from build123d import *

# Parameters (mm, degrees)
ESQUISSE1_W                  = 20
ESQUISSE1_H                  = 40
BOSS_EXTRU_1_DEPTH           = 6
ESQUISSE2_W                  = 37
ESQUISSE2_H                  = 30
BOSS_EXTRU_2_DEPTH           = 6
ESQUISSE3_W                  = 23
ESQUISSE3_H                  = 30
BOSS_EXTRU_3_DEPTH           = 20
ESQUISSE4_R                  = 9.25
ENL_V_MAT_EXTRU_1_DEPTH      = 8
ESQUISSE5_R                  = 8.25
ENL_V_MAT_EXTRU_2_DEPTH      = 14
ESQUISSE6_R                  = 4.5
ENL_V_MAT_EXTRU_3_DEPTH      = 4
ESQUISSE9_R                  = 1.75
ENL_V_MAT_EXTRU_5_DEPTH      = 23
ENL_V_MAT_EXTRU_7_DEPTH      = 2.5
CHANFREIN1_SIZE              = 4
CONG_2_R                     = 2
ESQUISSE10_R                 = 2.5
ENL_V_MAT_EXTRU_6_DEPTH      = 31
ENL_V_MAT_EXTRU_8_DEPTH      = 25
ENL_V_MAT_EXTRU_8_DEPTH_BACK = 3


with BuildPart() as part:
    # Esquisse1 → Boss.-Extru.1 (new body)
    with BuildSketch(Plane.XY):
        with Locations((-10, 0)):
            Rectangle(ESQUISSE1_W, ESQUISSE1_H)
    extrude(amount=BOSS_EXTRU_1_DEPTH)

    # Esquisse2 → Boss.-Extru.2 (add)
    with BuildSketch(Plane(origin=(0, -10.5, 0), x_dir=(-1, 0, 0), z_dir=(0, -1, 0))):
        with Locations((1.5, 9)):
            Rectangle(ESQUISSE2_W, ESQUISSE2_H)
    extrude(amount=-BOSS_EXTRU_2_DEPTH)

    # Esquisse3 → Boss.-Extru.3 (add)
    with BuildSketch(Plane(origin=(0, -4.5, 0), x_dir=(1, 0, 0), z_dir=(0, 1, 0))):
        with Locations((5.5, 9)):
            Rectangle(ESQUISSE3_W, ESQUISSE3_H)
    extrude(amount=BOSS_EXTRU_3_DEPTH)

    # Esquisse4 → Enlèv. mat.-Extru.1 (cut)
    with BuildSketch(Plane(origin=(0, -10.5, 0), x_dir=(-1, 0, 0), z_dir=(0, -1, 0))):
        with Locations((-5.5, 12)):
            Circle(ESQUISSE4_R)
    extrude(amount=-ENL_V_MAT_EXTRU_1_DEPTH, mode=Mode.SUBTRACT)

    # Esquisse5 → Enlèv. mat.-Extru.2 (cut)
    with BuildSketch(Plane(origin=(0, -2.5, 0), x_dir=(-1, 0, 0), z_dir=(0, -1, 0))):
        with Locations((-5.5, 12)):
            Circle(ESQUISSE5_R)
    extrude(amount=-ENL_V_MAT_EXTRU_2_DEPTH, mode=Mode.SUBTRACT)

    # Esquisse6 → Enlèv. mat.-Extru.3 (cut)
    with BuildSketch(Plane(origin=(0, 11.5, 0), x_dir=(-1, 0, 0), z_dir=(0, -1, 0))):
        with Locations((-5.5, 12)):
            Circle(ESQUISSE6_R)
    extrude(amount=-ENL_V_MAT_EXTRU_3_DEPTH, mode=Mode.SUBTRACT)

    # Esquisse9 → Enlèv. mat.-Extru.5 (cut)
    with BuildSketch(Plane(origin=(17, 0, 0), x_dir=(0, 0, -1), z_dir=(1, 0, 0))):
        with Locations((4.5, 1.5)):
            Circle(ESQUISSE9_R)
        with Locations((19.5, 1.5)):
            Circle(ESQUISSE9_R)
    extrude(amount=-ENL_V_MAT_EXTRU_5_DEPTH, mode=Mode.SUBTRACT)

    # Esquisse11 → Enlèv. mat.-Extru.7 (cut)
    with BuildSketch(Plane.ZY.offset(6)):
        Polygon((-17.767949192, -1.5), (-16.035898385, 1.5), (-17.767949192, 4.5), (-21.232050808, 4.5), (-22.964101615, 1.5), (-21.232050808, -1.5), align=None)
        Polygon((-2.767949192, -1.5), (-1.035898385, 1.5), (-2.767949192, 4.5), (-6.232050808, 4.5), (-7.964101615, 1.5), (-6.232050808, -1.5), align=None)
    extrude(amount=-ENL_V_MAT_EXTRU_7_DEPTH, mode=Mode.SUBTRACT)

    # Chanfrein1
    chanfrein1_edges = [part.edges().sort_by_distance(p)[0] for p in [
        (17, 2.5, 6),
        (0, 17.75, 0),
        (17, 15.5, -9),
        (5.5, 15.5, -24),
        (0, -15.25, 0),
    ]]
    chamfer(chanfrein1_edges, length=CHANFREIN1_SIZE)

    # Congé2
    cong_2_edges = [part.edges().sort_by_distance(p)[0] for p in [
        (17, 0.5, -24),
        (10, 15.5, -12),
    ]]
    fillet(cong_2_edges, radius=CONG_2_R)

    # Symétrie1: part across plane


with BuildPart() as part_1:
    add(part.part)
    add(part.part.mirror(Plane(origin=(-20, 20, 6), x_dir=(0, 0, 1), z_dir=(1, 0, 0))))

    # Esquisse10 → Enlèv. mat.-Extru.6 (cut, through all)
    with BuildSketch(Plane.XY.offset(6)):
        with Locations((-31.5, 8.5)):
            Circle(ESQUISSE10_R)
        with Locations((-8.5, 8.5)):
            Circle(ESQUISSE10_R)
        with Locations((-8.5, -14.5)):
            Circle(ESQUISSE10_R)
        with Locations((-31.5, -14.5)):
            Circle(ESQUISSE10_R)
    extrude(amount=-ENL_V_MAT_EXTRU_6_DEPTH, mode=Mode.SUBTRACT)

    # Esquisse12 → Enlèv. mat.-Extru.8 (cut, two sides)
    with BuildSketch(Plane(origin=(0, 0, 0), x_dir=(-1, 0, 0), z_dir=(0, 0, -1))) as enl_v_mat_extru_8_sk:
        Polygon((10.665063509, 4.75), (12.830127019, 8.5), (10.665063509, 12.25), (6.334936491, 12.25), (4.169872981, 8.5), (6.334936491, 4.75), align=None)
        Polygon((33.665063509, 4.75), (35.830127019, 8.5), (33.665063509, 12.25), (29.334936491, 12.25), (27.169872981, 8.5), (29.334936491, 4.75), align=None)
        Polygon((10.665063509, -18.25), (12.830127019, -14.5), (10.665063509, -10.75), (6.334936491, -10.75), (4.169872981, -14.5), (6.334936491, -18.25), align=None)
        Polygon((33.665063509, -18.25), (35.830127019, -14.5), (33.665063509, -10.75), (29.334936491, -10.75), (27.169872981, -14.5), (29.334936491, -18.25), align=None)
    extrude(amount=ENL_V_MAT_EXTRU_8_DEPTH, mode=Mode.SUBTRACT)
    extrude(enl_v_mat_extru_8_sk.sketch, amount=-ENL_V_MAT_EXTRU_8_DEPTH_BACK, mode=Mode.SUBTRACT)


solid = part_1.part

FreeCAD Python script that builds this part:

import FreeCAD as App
import Part
import Sketcher
from FreeCAD import Vector
Q = App.Units.Quantity


def edges_at(feature, points):
    """Names of the edges that pass closest to the given points."""
    edges = feature.Shape.Edges
    near = lambda p: min(range(len(edges)), key=lambda i: edges[i].distToShape(Part.Vertex(*p))[0])
    return sorted({f"Edge{near(p) + 1}" for p in points})

doc = App.newDocument("Part")
params = doc.addObject("Spreadsheet::Sheet", "Params")
for row, (alias, value) in enumerate([
    ("sketch1_width", "20 mm"),
    ("sketch1_height", "40 mm"),
    ("pad1_length", "6 mm"),
    ("sketch2_width", "37 mm"),
    ("sketch2_height", "30 mm"),
    ("pad2_length", "6 mm"),
    ("sketch3_width", "23 mm"),
    ("sketch3_height", "30 mm"),
    ("pad3_length", "20 mm"),
    ("sketch4_diameter", "18.5 mm"),
    ("pocket1_length", "8 mm"),
    ("sketch5_diameter", "16.5 mm"),
    ("pocket2_length", "14 mm"),
    ("sketch6_diameter", "9 mm"),
    ("pocket3_length", "4 mm"),
    ("sketch7_diameter", "3.5 mm"),
    ("pocket4_length", "23 mm"),
    ("pocket5_length", "2.5 mm"),
    ("chamfer_size", "4 mm"),
    ("fillet_radius", "2 mm"),
    ("sketch9_diameter", "5 mm"),
    ("pocket7_length", "25 mm"),
    ("pocket7_length2", "3 mm"),
], start=1):
    params.set(f"A{row}", alias)
    params.set(f"B{row}", "=" + value)
    params.setAlias(f"B{row}", alias)

body = doc.addObject("PartDesign::Body", "Body")

# Sketch on XY plane
sketch1 = body.newObject("Sketcher::SketchObject", "Sketch")
sketch1.AttachmentSupport = (doc.getObject("XY_Plane"), [""])
sketch1.MapMode = "FlatFace"
sketch1.addGeometry([
    Part.LineSegment(Vector(-20, 20, 0), Vector(-20, -20, 0)),
    Part.LineSegment(Vector(-20, -20, 0), Vector(0, -20, 0)),
    Part.LineSegment(Vector(0, -20, 0), Vector(0, 20, 0)),
    Part.LineSegment(Vector(0, 20, 0), Vector(-20, 20, 0)),
], False)
sketch1.addConstraint([
    Sketcher.Constraint("Coincident", 0, 2, 1, 1),
    Sketcher.Constraint("Coincident", 1, 2, 2, 1),
    Sketcher.Constraint("Coincident", 2, 2, 3, 1),
    Sketcher.Constraint("Coincident", 3, 2, 0, 1),
    Sketcher.Constraint("Vertical", 0),
    Sketcher.Constraint("Horizontal", 1),
    Sketcher.Constraint("Vertical", 2),
    Sketcher.Constraint("Horizontal", 3),
    Sketcher.Constraint("Symmetric", 1, 2, 2, 2, -1, 1),
    Sketcher.Constraint("DistanceX", 1, 1, 1, 2, 20.0),
    Sketcher.Constraint("DistanceY", 0, 2, 0, 1, 40.0),
])
sketch1.setExpression("Constraints[9]", "Params.sketch1_width")
sketch1.setExpression("Constraints[10]", "Params.sketch1_height")
pad1 = body.newObject("PartDesign::Pad", "Pad")
pad1.Profile = sketch1
pad1.setExpression("Length", "Params.pad1_length")

# Sketch on XZ plane
sketch2 = body.newObject("Sketcher::SketchObject", "Sketch001")
sketch2.AttachmentSupport = (doc.getObject("XZ_Plane"), [""])
sketch2.MapMode = "FlatFace"
sketch2.AttachmentOffset = App.Placement(Vector(0, 0, 10.5), App.Rotation())
sketch2.addGeometry([
    Part.LineSegment(Vector(17, -24, 0), Vector(17, 6, 0)),
    Part.LineSegment(Vector(17, 6, 0), Vector(-20, 6, 0)),
    Part.LineSegment(Vector(-20, 6, 0), Vector(-20, -24, 0)),
    Part.LineSegment(Vector(-20, -24, 0), Vector(17, -24, 0)),
], False)
sketch2.addConstraint([
    Sketcher.Constraint("Coincident", 0, 2, 1, 1),
    Sketcher.Constraint("Coincident", 1, 2, 2, 1),
    Sketcher.Constraint("Coincident", 2, 2, 3, 1),
    Sketcher.Constraint("Coincident", 3, 2, 0, 1),
    Sketcher.Constraint("Vertical", 0),
    Sketcher.Constraint("Horizontal", 1),
    Sketcher.Constraint("Vertical", 2),
    Sketcher.Constraint("Horizontal", 3),
    Sketcher.Constraint("DistanceX", 1, 2, 1, 1, 37.0),
    Sketcher.Constraint("DistanceY", 0, 1, 0, 2, 30.0),
    Sketcher.Constraint("DistanceX", -1, 1, 0, 2, 17.0),
    Sketcher.Constraint("DistanceY", -1, 1, 0, 2, 6.0),
])
sketch2.setExpression("Constraints[8]", "Params.sketch2_width")
sketch2.setExpression("Constraints[9]", "Params.sketch2_height")
pad2 = body.newObject("PartDesign::Pad", "Pad001")
pad2.Profile = sketch2
pad2.setExpression("Length", "Params.pad2_length")
pad2.Reversed = True

# Sketch on XZ plane
sketch3 = body.newObject("Sketcher::SketchObject", "Sketch002")
sketch3.AttachmentSupport = (doc.getObject("XZ_Plane"), [""])
sketch3.MapMode = "FlatFace"
sketch3.AttachmentOffset = App.Placement(Vector(0, 0, 4.5), App.Rotation())
sketch3.addGeometry([
    Part.LineSegment(Vector(-6, -24, 0), Vector(-6, 6, 0)),
    Part.LineSegment(Vector(-6, 6, 0), Vector(17, 6, 0)),
    Part.LineSegment(Vector(17, 6, 0), Vector(17, -24, 0)),
    Part.LineSegment(Vector(17, -24, 0), Vector(-6, -24, 0)),
], False)
sketch3.addConstraint([
    Sketcher.Constraint("Coincident", 0, 2, 1, 1),
    Sketcher.Constraint("Coincident", 1, 2, 2, 1),
    Sketcher.Constraint("Coincident", 2, 2, 3, 1),
    Sketcher.Constraint("Coincident", 3, 2, 0, 1),
    Sketcher.Constraint("Vertical", 0),
    Sketcher.Constraint("Horizontal", 1),
    Sketcher.Constraint("Vertical", 2),
    Sketcher.Constraint("Horizontal", 3),
    Sketcher.Constraint("DistanceX", 1, 1, 1, 2, 23.0),
    Sketcher.Constraint("DistanceY", 0, 1, 0, 2, 30.0),
    Sketcher.Constraint("DistanceX", 0, 2, -1, 1, 6.0),
    Sketcher.Constraint("DistanceY", -1, 1, 0, 2, 6.0),
])
sketch3.setExpression("Constraints[8]", "Params.sketch3_width")
sketch3.setExpression("Constraints[9]", "Params.sketch3_height")
pad3 = body.newObject("PartDesign::Pad", "Pad002")
pad3.Profile = sketch3
pad3.setExpression("Length", "Params.pad3_length")
pad3.Reversed = True

# Sketch on XZ plane
sketch4 = body.newObject("Sketcher::SketchObject", "Sketch003")
sketch4.AttachmentSupport = (doc.getObject("XZ_Plane"), [""])
sketch4.MapMode = "FlatFace"
sketch4.AttachmentOffset = App.Placement(Vector(0, 0, 10.5), App.Rotation())
sketch4.addGeometry(Part.Circle(Vector(5.5, -12, 0), Vector(0, 0, 1), 9.25), False)
sketch4.addConstraint([
    Sketcher.Constraint("Diameter", 0, 18.5),
    Sketcher.Constraint("DistanceY", 0, 3, -1, 1, 12.0),
    Sketcher.Constraint("DistanceX", -1, 1, 0, 3, 5.5),
])
sketch4.setExpression("Constraints[0]", "Params.sketch4_diameter")
pocket1 = body.newObject("PartDesign::Pocket", "Pocket")
pocket1.Profile = sketch4
pocket1.setExpression("Length", "Params.pocket1_length")

# Sketch on XZ plane
sketch5 = body.newObject("Sketcher::SketchObject", "Sketch004")
sketch5.AttachmentSupport = (doc.getObject("XZ_Plane"), [""])
sketch5.MapMode = "FlatFace"
sketch5.AttachmentOffset = App.Placement(Vector(0, 0, 2.5), App.Rotation())
sketch5.addGeometry(Part.Circle(Vector(5.5, -12, 0), Vector(0, 0, 1), 8.25), False)
sketch5.addConstraint([
    Sketcher.Constraint("Diameter", 0, 16.5),
    Sketcher.Constraint("DistanceY", 0, 3, -1, 1, 12.0),
    Sketcher.Constraint("DistanceX", -1, 1, 0, 3, 5.5),
])
sketch5.setExpression("Constraints[0]", "Params.sketch5_diameter")
pocket2 = body.newObject("PartDesign::Pocket", "Pocket001")
pocket2.Profile = sketch5
pocket2.setExpression("Length", "Params.pocket2_length")

# Sketch on XZ plane
sketch6 = body.newObject("Sketcher::SketchObject", "Sketch005")
sketch6.AttachmentSupport = (doc.getObject("XZ_Plane"), [""])
sketch6.MapMode = "FlatFace"
sketch6.AttachmentOffset = App.Placement(Vector(0, 0, -11.5), App.Rotation())
sketch6.addGeometry(Part.Circle(Vector(5.5, -12, 0), Vector(0, 0, 1), 4.5), False)
sketch6.addConstraint([
    Sketcher.Constraint("Diameter", 0, 9.0),
    Sketcher.Constraint("DistanceY", 0, 3, -1, 1, 12.0),
    Sketcher.Constraint("DistanceX", -1, 1, 0, 3, 5.5),
])
sketch6.setExpression("Constraints[0]", "Params.sketch6_diameter")
pocket3 = body.newObject("PartDesign::Pocket", "Pocket002")
pocket3.Profile = sketch6
pocket3.setExpression("Length", "Params.pocket3_length")

# Sketch on YZ plane
sketch7 = body.newObject("Sketcher::SketchObject", "Sketch006")
sketch7.AttachmentSupport = (doc.getObject("YZ_Plane"), [""])
sketch7.MapMode = "FlatFace"
sketch7.AttachmentOffset = App.Placement(Vector(0, 0, 17), App.Rotation())
sketch7.addGeometry([
    Part.Circle(Vector(1.5, -4.5, 0), Vector(0, 0, 1), 1.75),
    Part.Circle(Vector(1.5, -19.5, 0), Vector(0, 0, 1), 1.75),
], False)
sketch7.addConstraint([
    Sketcher.Constraint("Equal", 0, 1),
    Sketcher.Constraint("Vertical", 0, 3, 1, 3),
    Sketcher.Constraint("Diameter", 0, 3.5),
    Sketcher.Constraint("DistanceY", 1, 3, 0, 3, 15.0),
    Sketcher.Constraint("DistanceX", -1, 1, 0, 3, 1.5),
    Sketcher.Constraint("DistanceY", 0, 3, -1, 1, 4.5),
])
sketch7.setExpression("Constraints[2]", "Params.sketch7_diameter")
pocket4 = body.newObject("PartDesign::Pocket", "Pocket003")
pocket4.Profile = sketch7
pocket4.setExpression("Length", "Params.pocket4_length")

# Sketch on YZ plane
sketch8 = body.newObject("Sketcher::SketchObject", "Sketch007")
sketch8.AttachmentSupport = (doc.getObject("YZ_Plane"), [""])
sketch8.MapMode = "FlatFace"
sketch8.AttachmentOffset = App.Placement(Vector(0, 0, -6), App.Rotation())
sketch8.addGeometry([
    Part.LineSegment(Vector(-1.5, -17.767949, 0), Vector(1.5, -16.035898, 0)),  # 0
    Part.LineSegment(Vector(1.5, -16.035898, 0), Vector(4.5, -17.767949, 0)),  # 1
    Part.LineSegment(Vector(4.5, -17.767949, 0), Vector(4.5, -21.232051, 0)),  # 2
    Part.LineSegment(Vector(4.5, -21.232051, 0), Vector(1.5, -22.964102, 0)),  # 3
    Part.LineSegment(Vector(1.5, -22.964102, 0), Vector(-1.5, -21.232051, 0)),  # 4
    Part.LineSegment(Vector(-1.5, -21.232051, 0), Vector(-1.5, -17.767949, 0)),  # 5
    Part.LineSegment(Vector(-1.5, -2.767949, 0), Vector(1.5, -1.035898, 0)),  # 6
    Part.LineSegment(Vector(1.5, -1.035898, 0), Vector(4.5, -2.767949, 0)),  # 7
    Part.LineSegment(Vector(4.5, -2.767949, 0), Vector(4.5, -6.232051, 0)),  # 8
    Part.LineSegment(Vector(4.5, -6.232051, 0), Vector(1.5, -7.964102, 0)),  # 9
    Part.LineSegment(Vector(1.5, -7.964102, 0), Vector(-1.5, -6.232051, 0)),  # 10
    Part.LineSegment(Vector(-1.5, -6.232051, 0), Vector(-1.5, -2.767949, 0)),  # 11
], False)
sketch8.addConstraint([
    Sketcher.Constraint("Coincident", 0, 2, 1, 1),
    Sketcher.Constraint("Coincident", 1, 2, 2, 1),
    Sketcher.Constraint("Coincident", 2, 2, 3, 1),
    Sketcher.Constraint("Coincident", 3, 2, 4, 1),
    Sketcher.Constraint("Coincident", 4, 2, 5, 1),
    Sketcher.Constraint("Coincident", 5, 2, 0, 1),
    Sketcher.Constraint("Coincident", 6, 2, 7, 1),
    Sketcher.Constraint("Coincident", 7, 2, 8, 1),
    Sketcher.Constraint("Coincident", 8, 2, 9, 1),
    Sketcher.Constraint("Coincident", 9, 2, 10, 1),
    Sketcher.Constraint("Coincident", 10, 2, 11, 1),
    Sketcher.Constraint("Coincident", 11, 2, 6, 1),
    Sketcher.Constraint("Vertical", 2),
    Sketcher.Constraint("Vertical", 5),
    Sketcher.Constraint("Vertical", 8),
    Sketcher.Constraint("Vertical", 11),
    Sketcher.Constraint("Parallel", 0, 3),
    Sketcher.Constraint("Parallel", 1, 4),
    Sketcher.Constraint("Parallel", 3, 6),
    Sketcher.Constraint("Parallel", 4, 7),
    Sketcher.Constraint("Parallel", 6, 9),
    Sketcher.Constraint("Parallel", 7, 10),
    Sketcher.Constraint("Horizontal", 2, 2, 4, 2),
    Sketcher.Constraint("Horizontal", 1, 2, 5, 2),
    Sketcher.Constraint("Horizontal", 8, 2, 10, 2),
    Sketcher.Constraint("Horizontal", 7, 2, 11, 2),
    Sketcher.Constraint("Vertical", 0, 2, 3, 2),
    Sketcher.Constraint("Vertical", 3, 2, 6, 2),
    Sketcher.Constraint("Vertical", 2, 2, 7, 2),
    Sketcher.Constraint("Equal", 5, 8),
    Sketcher.Constraint("Angle", 0, Q("30 deg")),
    Sketcher.Constraint("DistanceX", 0, 2, 1, 2, 3.0),
    Sketcher.Constraint("DistanceY", 0, 2, 6, 2, 15.0),
    Sketcher.Constraint("DistanceX", -1, 1, 0, 2, 1.5),
    Sketcher.Constraint("DistanceY", 2, 2, 2, 1, 3.464102),
    Sketcher.Constraint("DistanceY", 0, 2, -1, 1, 16.035898),
])
pocket5 = body.newObject("PartDesign::Pocket", "Pocket004")
pocket5.Profile = sketch8
pocket5.setExpression("Length", "Params.pocket5_length")
pocket5.Reversed = True
doc.recompute()

chamfer = body.newObject("PartDesign::Chamfer", "Chamfer")
chamfer.Base = (pocket5, edges_at(pocket5, [
    (17, 2.5, 6),
    (0, 17.75, 0),
    (17, 15.5, -9),
    (5.5, 15.5, -24),
    (0, -15.25, 0),
]))
chamfer.setExpression("Size", "Params.chamfer_size")
doc.recompute()

fillet = body.newObject("PartDesign::Fillet", "Fillet")
fillet.Base = (chamfer, edges_at(chamfer, [(17, 0.5, -24), (10, 15.5, -12)]))
fillet.setExpression("Radius", "Params.fillet_radius")
body2 = doc.addObject("PartDesign::Body", "Body001")
doc.recompute()

body2.BaseFeature = body
doc.recompute()

mirroring = doc.addObject("Part::Mirroring", "Mirroring")
mirroring.Source = body
mirroring.Base = Vector(-20, 20, 6)
mirroring.Normal = Vector(1, 0, 0)
body3 = doc.addObject("PartDesign::Body", "Body002")
body3.BaseFeature = mirroring
boolean = body2.newObject("PartDesign::Boolean", "Boolean")
boolean.Type = "Fuse"
boolean.addObjects([body3])
doc.recompute()

# Sketch on XY plane
sketch9 = body2.newObject("Sketcher::SketchObject", "Sketch008")
sketch9.AttachmentSupport = (doc.getObject("XY_Plane001"), [""])
sketch9.MapMode = "FlatFace"
sketch9.AttachmentOffset = App.Placement(Vector(0, 0, 6), App.Rotation())
sketch9.addGeometry([
    Part.Circle(Vector(-31.5, 8.5, 0), Vector(0, 0, 1), 2.5),
    Part.Circle(Vector(-8.5, 8.5, 0), Vector(0, 0, 1), 2.5),
    Part.Circle(Vector(-8.5, -14.5, 0), Vector(0, 0, 1), 2.5),
    Part.Circle(Vector(-31.5, -14.5, 0), Vector(0, 0, 1), 2.5),
], False)
sketch9.addConstraint([
    Sketcher.Constraint("Equal", 0, 1),
    Sketcher.Constraint("Equal", 1, 2),
    Sketcher.Constraint("Equal", 2, 3),
    Sketcher.Constraint("Horizontal", 0, 3, 1, 3),
    Sketcher.Constraint("Horizontal", 2, 3, 3, 3),
    Sketcher.Constraint("Vertical", 1, 3, 2, 3),
    Sketcher.Constraint("Vertical", 0, 3, 3, 3),
    Sketcher.Constraint("Diameter", 0, 5.0),
    Sketcher.Constraint("DistanceX", 0, 3, 1, 3, 23.0),
    Sketcher.Constraint("DistanceY", 2, 3, 1, 3, 23.0),
    Sketcher.Constraint("DistanceX", 0, 3, -1, 1, 31.5),
    Sketcher.Constraint("DistanceY", -1, 1, 0, 3, 8.5),
])
sketch9.setExpression("Constraints[7]", "Params.sketch9_diameter")
pocket6 = body2.newObject("PartDesign::Pocket", "Pocket005")
pocket6.Profile = sketch9
pocket6.Type = "ThroughAll"

# Sketch on XY plane
sketch10 = body2.newObject("Sketcher::SketchObject", "Sketch009")
sketch10.AttachmentSupport = (doc.getObject("XY_Plane001"), [""])
sketch10.MapMode = "FlatFace"
sketch10.addGeometry([
    Part.LineSegment(Vector(-10.665064, 4.75, 0), Vector(-12.830127, 8.5, 0)),  # 0
    Part.LineSegment(Vector(-12.830127, 8.5, 0), Vector(-10.665064, 12.25, 0)),  # 1
    Part.LineSegment(Vector(-10.665064, 12.25, 0), Vector(-6.334936, 12.25, 0)),  # 2
    Part.LineSegment(Vector(-6.334936, 12.25, 0), Vector(-4.169873, 8.5, 0)),  # 3
    Part.LineSegment(Vector(-4.169873, 8.5, 0), Vector(-6.334936, 4.75, 0)),  # 4
    Part.LineSegment(Vector(-6.334936, 4.75, 0), Vector(-10.665064, 4.75, 0)),  # 5
    Part.LineSegment(Vector(-33.665064, 4.75, 0), Vector(-35.830127, 8.5, 0)),  # 6
    Part.LineSegment(Vector(-35.830127, 8.5, 0), Vector(-33.665064, 12.25, 0)),  # 7
    Part.LineSegment(Vector(-33.665064, 12.25, 0), Vector(-29.334936, 12.25, 0)),  # 8
    Part.LineSegment(Vector(-29.334936, 12.25, 0), Vector(-27.169873, 8.5, 0)),  # 9
    Part.LineSegment(Vector(-27.169873, 8.5, 0), Vector(-29.334936, 4.75, 0)),  # 10
    Part.LineSegment(Vector(-29.334936, 4.75, 0), Vector(-33.665064, 4.75, 0)),  # 11
    Part.LineSegment(Vector(-10.665064, -18.25, 0), Vector(-12.830127, -14.5, 0)),  # 12
    Part.LineSegment(Vector(-12.830127, -14.5, 0), Vector(-10.665064, -10.75, 0)),  # 13
    Part.LineSegment(Vector(-10.665064, -10.75, 0), Vector(-6.334936, -10.75, 0)),  # 14
    Part.LineSegment(Vector(-6.334936, -10.75, 0), Vector(-4.169873, -14.5, 0)),  # 15
    Part.LineSegment(Vector(-4.169873, -14.5, 0), Vector(-6.334936, -18.25, 0)),  # 16
    Part.LineSegment(Vector(-6.334936, -18.25, 0), Vector(-10.665064, -18.25, 0)),  # 17
    Part.LineSegment(Vector(-33.665064, -18.25, 0), Vector(-35.830127, -14.5, 0)),  # 18
    Part.LineSegment(Vector(-35.830127, -14.5, 0), Vector(-33.665064, -10.75, 0)),  # 19
    Part.LineSegment(Vector(-33.665064, -10.75, 0), Vector(-29.334936, -10.75, 0)),  # 20
    Part.LineSegment(Vector(-29.334936, -10.75, 0), Vector(-27.169873, -14.5, 0)),  # 21
    Part.LineSegment(Vector(-27.169873, -14.5, 0), Vector(-29.334936, -18.25, 0)),  # 22
    Part.LineSegment(Vector(-29.334936, -18.25, 0), Vector(-33.665064, -18.25, 0)),  # 23
], False)
sketch10.addConstraint([
    Sketcher.Constraint("Coincident", 0, 2, 1, 1),
    Sketcher.Constraint("Coincident", 1, 2, 2, 1),
    Sketcher.Constraint("Coincident", 2, 2, 3, 1),
    Sketcher.Constraint("Coincident", 3, 2, 4, 1),
    Sketcher.Constraint("Coincident", 4, 2, 5, 1),
    Sketcher.Constraint("Coincident", 5, 2, 0, 1),
    Sketcher.Constraint("Coincident", 6, 2, 7, 1),
    Sketcher.Constraint("Coincident", 7, 2, 8, 1),
    Sketcher.Constraint("Coincident", 8, 2, 9, 1),
    Sketcher.Constraint("Coincident", 9, 2, 10, 1),
    Sketcher.Constraint("Coincident", 10, 2, 11, 1),
    Sketcher.Constraint("Coincident", 11, 2, 6, 1),
    Sketcher.Constraint("Coincident", 12, 2, 13, 1),
    Sketcher.Constraint("Coincident", 13, 2, 14, 1),
    Sketcher.Constraint("Coincident", 14, 2, 15, 1),
    Sketcher.Constraint("Coincident", 15, 2, 16, 1),
    Sketcher.Constraint("Coincident", 16, 2, 17, 1),
    Sketcher.Constraint("Coincident", 17, 2, 12, 1),
    Sketcher.Constraint("Coincident", 18, 2, 19, 1),
    Sketcher.Constraint("Coincident", 19, 2, 20, 1),
    Sketcher.Constraint("Coincident", 20, 2, 21, 1),
    Sketcher.Constraint("Coincident", 21, 2, 22, 1),
    Sketcher.Constraint("Coincident", 22, 2, 23, 1),
    Sketcher.Constraint("Coincident", 23, 2, 18, 1),
    Sketcher.Constraint("Horizontal", 2),
    Sketcher.Constraint("Horizontal", 5),
    Sketcher.Constraint("Horizontal", 8),
    Sketcher.Constraint("Horizontal", 11),
    Sketcher.Constraint("Horizontal", 14),
    Sketcher.Constraint("Horizontal", 17),
    Sketcher.Constraint("Horizontal", 20),
    Sketcher.Constraint("Horizontal", 23),
    Sketcher.Constraint("Parallel", 0, 3),
    Sketcher.Constraint("Parallel", 1, 4),
    Sketcher.Constraint("Parallel", 3, 6),
    Sketcher.Constraint("Parallel", 4, 7),
    Sketcher.Constraint("Parallel", 6, 9),
    Sketcher.Constraint("Parallel", 7, 10),
    Sketcher.Constraint("Parallel", 9, 12),
    Sketcher.Constraint("Parallel", 10, 13),
    Sketcher.Constraint("Parallel", 12, 15),
    Sketcher.Constraint("Parallel", 13, 16),
    Sketcher.Constraint("Parallel", 15, 18),
    Sketcher.Constraint("Parallel", 16, 19),
    Sketcher.Constraint("Parallel", 18, 21),
    Sketcher.Constraint("Parallel", 19, 22),
    Sketcher.Constraint("Horizontal", 0, 2, 3, 2),
    Sketcher.Constraint("Horizontal", 3, 2, 6, 2),
    Sketcher.Constraint("Horizontal", 2, 2, 7, 2),
    Sketcher.Constraint("Horizontal", 6, 2, 9, 2),
    Sketcher.Constraint("Horizontal", 5, 2, 10, 2),
    Sketcher.Constraint("Horizontal", 12, 2, 15, 2),
    Sketcher.Constraint("Horizontal", 15, 2, 18, 2),
    Sketcher.Constraint("Horizontal", 14, 2, 19, 2),
    Sketcher.Constraint("Horizontal", 18, 2, 21, 2),
    Sketcher.Constraint("Horizontal", 17, 2, 22, 2),
    Sketcher.Constraint("Vertical", 2, 2, 4, 2),
    Sketcher.Constraint("Vertical", 1, 2, 5, 2),
    Sketcher.Constraint("Vertical", 0, 2, 12, 2),
    Sketcher.Constraint("Vertical", 5, 2, 13, 2),
    Sketcher.Constraint("Vertical", 4, 2, 14, 2),
    Sketcher.Constraint("Vertical", 14, 2, 16, 2),
    Sketcher.Constraint("Vertical", 6, 2, 18, 2),
    Sketcher.Constraint("Vertical", 10, 2, 20, 2),
    Sketcher.Constraint("Equal", 5, 8),
    Sketcher.Constraint("Angle", 0, Q("120 deg")),
    Sketcher.Constraint("DistanceX", 6, 2, 0, 2, 23.0),
    Sketcher.Constraint("DistanceY", 12, 2, 0, 2, 23.0),
    Sketcher.Constraint("DistanceY", -1, 1, 0, 2, 8.5),
    Sketcher.Constraint("DistanceY", 4, 2, 2, 2, 7.5),
    Sketcher.Constraint("DistanceX", 2, 1, 2, 2, 4.330127),
    Sketcher.Constraint("DistanceX", 0, 2, -1, 1, 12.830127),
])
pocket7 = body2.newObject("PartDesign::Pocket", "Pocket006")
pocket7.Profile = sketch10
pocket7.Type = "TwoLengths"
pocket7.setExpression("Length", "Params.pocket7_length")
pocket7.setExpression("Length2", "Params.pocket7_length2")
mirroring.Visibility = False

doc.recompute()
